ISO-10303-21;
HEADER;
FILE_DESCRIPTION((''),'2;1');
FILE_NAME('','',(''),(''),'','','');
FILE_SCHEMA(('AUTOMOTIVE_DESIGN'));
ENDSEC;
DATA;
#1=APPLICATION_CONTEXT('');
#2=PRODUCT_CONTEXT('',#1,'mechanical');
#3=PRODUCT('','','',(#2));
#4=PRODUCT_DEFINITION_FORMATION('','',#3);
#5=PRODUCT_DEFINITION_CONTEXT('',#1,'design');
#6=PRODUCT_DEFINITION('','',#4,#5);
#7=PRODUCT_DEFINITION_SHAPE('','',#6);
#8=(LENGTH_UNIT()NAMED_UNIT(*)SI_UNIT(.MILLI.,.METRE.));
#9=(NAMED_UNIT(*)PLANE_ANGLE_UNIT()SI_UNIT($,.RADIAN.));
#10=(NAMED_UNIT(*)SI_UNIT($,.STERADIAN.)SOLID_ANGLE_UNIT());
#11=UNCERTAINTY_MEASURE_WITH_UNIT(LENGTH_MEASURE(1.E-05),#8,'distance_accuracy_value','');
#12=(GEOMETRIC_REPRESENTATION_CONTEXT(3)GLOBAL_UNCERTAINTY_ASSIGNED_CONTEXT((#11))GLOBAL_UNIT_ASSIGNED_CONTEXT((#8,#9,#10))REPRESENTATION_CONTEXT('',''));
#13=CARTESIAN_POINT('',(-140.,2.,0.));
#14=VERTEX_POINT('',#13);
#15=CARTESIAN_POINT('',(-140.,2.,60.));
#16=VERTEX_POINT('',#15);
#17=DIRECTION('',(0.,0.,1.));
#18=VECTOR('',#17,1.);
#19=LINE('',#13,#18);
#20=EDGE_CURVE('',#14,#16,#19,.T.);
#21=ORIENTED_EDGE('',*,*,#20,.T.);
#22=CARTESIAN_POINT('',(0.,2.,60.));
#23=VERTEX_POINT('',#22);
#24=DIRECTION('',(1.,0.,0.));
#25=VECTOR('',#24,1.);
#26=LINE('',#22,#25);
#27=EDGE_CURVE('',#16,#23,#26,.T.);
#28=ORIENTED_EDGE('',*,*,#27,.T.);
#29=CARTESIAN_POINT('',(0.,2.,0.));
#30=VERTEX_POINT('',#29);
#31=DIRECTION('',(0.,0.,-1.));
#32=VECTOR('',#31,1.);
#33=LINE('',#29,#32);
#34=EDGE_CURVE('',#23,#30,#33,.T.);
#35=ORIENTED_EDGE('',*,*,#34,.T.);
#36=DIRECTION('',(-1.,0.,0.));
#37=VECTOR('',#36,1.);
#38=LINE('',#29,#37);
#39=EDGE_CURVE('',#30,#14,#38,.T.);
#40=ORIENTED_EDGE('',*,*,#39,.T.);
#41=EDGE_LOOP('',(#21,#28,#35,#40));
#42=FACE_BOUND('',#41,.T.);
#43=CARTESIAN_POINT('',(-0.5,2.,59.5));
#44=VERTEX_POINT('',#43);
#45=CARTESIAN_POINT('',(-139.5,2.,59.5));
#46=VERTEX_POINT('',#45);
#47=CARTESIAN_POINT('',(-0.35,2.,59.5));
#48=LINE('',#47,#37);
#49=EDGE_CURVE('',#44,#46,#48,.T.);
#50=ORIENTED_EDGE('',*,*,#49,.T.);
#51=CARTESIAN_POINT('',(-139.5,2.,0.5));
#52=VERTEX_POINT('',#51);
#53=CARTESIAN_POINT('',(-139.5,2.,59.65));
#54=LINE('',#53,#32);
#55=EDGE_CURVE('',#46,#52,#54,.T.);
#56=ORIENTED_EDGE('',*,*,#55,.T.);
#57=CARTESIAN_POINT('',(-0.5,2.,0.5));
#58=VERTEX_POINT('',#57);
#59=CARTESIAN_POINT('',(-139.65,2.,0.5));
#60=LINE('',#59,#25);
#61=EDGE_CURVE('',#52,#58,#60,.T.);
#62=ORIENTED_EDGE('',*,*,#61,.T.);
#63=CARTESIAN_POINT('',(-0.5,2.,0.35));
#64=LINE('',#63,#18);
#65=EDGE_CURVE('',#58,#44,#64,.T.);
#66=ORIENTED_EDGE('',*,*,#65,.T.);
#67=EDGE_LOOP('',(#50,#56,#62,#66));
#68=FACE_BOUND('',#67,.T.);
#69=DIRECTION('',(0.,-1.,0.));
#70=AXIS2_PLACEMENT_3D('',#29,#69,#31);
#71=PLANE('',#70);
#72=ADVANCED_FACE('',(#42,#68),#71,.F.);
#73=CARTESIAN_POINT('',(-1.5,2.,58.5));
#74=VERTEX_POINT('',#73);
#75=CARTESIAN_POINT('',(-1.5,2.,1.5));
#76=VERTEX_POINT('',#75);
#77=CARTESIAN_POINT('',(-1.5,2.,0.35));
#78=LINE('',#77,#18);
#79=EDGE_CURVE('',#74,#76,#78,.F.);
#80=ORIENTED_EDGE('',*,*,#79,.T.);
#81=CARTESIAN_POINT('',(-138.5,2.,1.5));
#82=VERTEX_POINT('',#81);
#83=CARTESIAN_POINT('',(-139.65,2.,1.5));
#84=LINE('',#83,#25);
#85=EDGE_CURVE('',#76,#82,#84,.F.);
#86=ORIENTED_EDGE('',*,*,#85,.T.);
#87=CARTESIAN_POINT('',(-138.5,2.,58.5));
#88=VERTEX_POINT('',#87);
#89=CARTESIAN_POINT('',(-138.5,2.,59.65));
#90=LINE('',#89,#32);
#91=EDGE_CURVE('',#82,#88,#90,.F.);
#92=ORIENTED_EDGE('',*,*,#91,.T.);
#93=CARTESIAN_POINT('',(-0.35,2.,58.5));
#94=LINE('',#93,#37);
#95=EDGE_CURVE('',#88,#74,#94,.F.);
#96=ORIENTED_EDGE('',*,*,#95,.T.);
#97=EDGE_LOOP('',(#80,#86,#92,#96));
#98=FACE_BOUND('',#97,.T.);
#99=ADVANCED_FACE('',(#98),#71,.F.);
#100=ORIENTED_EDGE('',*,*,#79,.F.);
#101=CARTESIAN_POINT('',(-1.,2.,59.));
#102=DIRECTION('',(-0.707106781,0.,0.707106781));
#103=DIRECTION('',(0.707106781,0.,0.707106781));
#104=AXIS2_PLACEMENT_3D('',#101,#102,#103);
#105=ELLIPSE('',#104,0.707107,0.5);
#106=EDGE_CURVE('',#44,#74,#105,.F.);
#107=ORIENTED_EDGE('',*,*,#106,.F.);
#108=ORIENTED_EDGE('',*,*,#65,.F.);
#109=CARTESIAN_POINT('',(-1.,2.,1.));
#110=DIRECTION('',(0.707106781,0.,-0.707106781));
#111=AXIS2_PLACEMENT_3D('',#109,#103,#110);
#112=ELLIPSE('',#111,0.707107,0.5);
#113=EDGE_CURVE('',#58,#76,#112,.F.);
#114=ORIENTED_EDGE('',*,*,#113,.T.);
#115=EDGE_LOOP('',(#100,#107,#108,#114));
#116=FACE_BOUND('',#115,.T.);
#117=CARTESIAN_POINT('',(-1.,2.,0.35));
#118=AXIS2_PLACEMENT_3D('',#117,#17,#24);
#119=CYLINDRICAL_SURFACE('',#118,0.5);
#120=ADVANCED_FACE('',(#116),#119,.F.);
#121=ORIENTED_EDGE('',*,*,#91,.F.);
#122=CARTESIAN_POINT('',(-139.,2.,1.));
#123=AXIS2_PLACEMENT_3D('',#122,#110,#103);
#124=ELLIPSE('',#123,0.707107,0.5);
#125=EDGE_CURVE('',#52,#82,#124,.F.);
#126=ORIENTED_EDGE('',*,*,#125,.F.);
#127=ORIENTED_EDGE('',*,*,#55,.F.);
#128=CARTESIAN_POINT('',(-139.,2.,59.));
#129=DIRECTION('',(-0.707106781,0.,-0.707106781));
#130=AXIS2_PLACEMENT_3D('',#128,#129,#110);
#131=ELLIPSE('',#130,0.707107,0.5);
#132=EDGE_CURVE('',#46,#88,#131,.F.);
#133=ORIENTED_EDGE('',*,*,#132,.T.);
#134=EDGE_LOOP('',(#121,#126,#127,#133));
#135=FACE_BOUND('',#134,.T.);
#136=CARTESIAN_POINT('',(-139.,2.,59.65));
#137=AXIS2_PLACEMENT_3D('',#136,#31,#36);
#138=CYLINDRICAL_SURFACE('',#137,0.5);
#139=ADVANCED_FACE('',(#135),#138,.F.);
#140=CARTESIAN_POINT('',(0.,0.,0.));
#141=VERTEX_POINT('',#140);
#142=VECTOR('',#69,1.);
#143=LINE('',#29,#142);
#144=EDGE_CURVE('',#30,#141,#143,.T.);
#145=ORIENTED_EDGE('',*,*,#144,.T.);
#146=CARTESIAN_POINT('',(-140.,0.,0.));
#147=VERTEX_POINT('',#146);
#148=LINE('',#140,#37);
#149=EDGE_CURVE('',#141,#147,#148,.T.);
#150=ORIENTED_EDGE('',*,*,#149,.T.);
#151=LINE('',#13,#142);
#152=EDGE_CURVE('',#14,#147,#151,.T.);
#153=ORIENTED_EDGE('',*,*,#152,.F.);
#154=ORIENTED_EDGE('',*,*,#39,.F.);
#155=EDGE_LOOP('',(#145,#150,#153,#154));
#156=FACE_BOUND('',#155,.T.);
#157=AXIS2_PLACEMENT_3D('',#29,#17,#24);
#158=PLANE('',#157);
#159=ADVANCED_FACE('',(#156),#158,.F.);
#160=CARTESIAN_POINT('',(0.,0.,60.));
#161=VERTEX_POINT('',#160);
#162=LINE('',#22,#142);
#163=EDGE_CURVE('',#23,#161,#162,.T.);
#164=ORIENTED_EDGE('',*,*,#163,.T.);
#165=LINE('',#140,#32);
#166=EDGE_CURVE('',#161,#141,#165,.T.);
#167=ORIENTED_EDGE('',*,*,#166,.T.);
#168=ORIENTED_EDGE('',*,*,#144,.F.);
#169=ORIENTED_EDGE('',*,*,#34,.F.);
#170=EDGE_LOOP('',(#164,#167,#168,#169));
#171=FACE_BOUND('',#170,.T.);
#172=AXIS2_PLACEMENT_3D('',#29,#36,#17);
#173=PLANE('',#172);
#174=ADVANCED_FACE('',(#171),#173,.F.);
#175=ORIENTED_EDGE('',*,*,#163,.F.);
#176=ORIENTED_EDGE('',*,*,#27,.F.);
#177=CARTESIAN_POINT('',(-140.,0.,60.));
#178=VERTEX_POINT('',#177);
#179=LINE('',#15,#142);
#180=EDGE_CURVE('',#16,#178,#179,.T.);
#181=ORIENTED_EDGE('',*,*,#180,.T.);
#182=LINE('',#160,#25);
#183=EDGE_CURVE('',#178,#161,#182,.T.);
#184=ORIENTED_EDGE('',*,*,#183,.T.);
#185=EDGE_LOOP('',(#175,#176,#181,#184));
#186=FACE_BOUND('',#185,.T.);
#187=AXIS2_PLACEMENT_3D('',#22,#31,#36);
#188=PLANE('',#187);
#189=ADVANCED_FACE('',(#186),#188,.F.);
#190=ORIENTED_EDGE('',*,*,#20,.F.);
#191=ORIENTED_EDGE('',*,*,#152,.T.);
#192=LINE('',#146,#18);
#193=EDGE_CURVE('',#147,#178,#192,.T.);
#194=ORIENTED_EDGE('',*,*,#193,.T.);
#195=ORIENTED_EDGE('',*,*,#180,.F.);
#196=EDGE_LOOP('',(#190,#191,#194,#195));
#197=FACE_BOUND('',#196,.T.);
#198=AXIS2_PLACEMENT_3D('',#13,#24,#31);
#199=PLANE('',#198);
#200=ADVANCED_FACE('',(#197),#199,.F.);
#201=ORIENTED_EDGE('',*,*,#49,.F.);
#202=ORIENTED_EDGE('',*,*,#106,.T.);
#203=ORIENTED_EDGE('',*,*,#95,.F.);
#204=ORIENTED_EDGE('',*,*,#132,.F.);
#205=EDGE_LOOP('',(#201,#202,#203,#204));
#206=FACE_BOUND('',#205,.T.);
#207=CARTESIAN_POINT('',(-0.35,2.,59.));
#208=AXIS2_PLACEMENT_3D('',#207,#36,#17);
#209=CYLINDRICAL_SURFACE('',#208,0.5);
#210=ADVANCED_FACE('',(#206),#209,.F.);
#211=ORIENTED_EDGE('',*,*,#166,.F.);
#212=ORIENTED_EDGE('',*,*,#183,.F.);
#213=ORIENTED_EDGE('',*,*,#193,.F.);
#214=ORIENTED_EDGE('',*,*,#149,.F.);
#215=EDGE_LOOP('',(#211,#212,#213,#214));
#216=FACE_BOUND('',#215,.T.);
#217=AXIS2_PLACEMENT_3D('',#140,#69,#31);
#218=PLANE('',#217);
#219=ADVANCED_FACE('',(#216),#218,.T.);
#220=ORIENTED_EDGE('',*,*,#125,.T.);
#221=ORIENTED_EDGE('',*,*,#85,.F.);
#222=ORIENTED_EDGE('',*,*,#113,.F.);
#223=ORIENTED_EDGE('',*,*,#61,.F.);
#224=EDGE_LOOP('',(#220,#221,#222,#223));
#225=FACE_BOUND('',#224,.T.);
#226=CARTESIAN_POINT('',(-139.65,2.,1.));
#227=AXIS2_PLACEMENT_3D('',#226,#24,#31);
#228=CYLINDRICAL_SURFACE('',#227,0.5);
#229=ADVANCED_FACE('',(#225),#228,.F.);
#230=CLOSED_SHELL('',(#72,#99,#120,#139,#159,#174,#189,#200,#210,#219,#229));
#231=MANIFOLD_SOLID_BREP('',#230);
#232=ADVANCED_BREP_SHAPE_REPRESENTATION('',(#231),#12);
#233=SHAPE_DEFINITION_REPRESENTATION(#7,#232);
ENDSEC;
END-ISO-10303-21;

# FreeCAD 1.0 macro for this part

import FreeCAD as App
import Part
import Sketcher
from FreeCAD import Vector
Q = App.Units.Quantity


def add_polygon(sketch, points):
    """Adds a closed chain of lines whose ends are joined by coincident constraints."""
    first, n = sketch.GeometryCount, len(points)
    for a, b in zip(points, points[1:] + points[:1]):
        sketch.addGeometry(Part.LineSegment(App.Vector(*a, 0), App.Vector(*b, 0)), False)
    for i in range(n):
        sketch.addConstraint(Sketcher.Constraint("Coincident", first + i, 2, first + (i + 1) % n, 1))

doc = App.newDocument("Part")
body = doc.addObject("PartDesign::Body", "Body")

# Sketch on XZ plane
sketch1 = body.newObject("Sketcher::SketchObject", "Sketch")
sketch1.AttachmentSupport = (doc.getObject("XZ_Plane"), [""])
sketch1.MapMode = "FlatFace"
add_polygon(sketch1, [(-140, 0), (-140, 60), (0, 60), (0, 0)])  # lines 0-3
sketch1.addConstraint([
    Sketcher.Constraint("Vertical", 0),
    Sketcher.Constraint("Horizontal", 1),
    Sketcher.Constraint("Vertical", 2),
    Sketcher.Constraint("Horizontal", 3),
    Sketcher.Constraint("Coincident", 2, 2, -1, 1),
    Sketcher.Constraint("DistanceX", 1, 1, 1, 2, Q("140 mm")),
    Sketcher.Constraint("DistanceY", 0, 1, 0, 2, Q("60 mm")),
])
pad1 = body.newObject("PartDesign::Pad", "Pad")
pad1.Profile = sketch1
pad1.Length = 2
pad1.Reversed = True

# Sketch on XY plane
sketch2 = body.newObject("Sketcher::SketchObject", "Sketch001")
sketch2.AttachmentSupport = (doc.getObject("XY_Plane"), [""])
sketch2.MapMode = "FlatFace"
sketch2.AttachmentOffset = App.Placement(Vector(0, 0, 59), App.Rotation())
sketch2.addGeometry(Part.Circle(Vector(-1, 2, 0), Vector(0, 0, 1), 0.5), False)
sketch2.addConstraint([
    Sketcher.Constraint("Diameter", 0, Q("1 mm")),
    Sketcher.Constraint("DistanceX", 0, 3, -1, 1, Q("1 mm")),
    Sketcher.Constraint("DistanceY", -1, 1, 0, 3, Q("2 mm")),
])

# Sketch on XZ plane
sketch3 = body.newObject("Sketcher::SketchObject", "Sketch002")
sketch3.AttachmentSupport = (doc.getObject("XZ_Plane"), [""])
sketch3.MapMode = "FlatFace"
sketch3.AttachmentOffset = App.Placement(Vector(0, 0, -2), App.Rotation())
add_polygon(sketch3, [(-1, 59), (-1, 1), (-139, 1), (-139, 59)])  # lines 0-3
sketch3.addConstraint([
    Sketcher.Constraint("Vertical", 0),
    Sketcher.Constraint("Horizontal", 1),
    Sketcher.Constraint("Vertical", 2),
    Sketcher.Constraint("Horizontal", 3),
    Sketcher.Constraint("DistanceX", 1, 2, 1, 1, Q("138 mm")),
    Sketcher.Constraint("DistanceY", 0, 2, 0, 1, Q("58 mm")),
    Sketcher.Constraint("DistanceX", 0, 2, -1, 1, Q("1 mm")),
    Sketcher.Constraint("DistanceY", -1, 1, 0, 2, Q("1 mm")),
])
doc.recompute()

subtractivepipe = body.newObject("PartDesign::SubtractivePipe", "SubtractivePipe")
subtractivepipe.Profile = sketch2
subtractivepipe.Spine = (sketch3, ["Edge1", "Edge2", "Edge3", "Edge4"])
subtractivepipe.Transition = "Right corner"

doc.recompute()
